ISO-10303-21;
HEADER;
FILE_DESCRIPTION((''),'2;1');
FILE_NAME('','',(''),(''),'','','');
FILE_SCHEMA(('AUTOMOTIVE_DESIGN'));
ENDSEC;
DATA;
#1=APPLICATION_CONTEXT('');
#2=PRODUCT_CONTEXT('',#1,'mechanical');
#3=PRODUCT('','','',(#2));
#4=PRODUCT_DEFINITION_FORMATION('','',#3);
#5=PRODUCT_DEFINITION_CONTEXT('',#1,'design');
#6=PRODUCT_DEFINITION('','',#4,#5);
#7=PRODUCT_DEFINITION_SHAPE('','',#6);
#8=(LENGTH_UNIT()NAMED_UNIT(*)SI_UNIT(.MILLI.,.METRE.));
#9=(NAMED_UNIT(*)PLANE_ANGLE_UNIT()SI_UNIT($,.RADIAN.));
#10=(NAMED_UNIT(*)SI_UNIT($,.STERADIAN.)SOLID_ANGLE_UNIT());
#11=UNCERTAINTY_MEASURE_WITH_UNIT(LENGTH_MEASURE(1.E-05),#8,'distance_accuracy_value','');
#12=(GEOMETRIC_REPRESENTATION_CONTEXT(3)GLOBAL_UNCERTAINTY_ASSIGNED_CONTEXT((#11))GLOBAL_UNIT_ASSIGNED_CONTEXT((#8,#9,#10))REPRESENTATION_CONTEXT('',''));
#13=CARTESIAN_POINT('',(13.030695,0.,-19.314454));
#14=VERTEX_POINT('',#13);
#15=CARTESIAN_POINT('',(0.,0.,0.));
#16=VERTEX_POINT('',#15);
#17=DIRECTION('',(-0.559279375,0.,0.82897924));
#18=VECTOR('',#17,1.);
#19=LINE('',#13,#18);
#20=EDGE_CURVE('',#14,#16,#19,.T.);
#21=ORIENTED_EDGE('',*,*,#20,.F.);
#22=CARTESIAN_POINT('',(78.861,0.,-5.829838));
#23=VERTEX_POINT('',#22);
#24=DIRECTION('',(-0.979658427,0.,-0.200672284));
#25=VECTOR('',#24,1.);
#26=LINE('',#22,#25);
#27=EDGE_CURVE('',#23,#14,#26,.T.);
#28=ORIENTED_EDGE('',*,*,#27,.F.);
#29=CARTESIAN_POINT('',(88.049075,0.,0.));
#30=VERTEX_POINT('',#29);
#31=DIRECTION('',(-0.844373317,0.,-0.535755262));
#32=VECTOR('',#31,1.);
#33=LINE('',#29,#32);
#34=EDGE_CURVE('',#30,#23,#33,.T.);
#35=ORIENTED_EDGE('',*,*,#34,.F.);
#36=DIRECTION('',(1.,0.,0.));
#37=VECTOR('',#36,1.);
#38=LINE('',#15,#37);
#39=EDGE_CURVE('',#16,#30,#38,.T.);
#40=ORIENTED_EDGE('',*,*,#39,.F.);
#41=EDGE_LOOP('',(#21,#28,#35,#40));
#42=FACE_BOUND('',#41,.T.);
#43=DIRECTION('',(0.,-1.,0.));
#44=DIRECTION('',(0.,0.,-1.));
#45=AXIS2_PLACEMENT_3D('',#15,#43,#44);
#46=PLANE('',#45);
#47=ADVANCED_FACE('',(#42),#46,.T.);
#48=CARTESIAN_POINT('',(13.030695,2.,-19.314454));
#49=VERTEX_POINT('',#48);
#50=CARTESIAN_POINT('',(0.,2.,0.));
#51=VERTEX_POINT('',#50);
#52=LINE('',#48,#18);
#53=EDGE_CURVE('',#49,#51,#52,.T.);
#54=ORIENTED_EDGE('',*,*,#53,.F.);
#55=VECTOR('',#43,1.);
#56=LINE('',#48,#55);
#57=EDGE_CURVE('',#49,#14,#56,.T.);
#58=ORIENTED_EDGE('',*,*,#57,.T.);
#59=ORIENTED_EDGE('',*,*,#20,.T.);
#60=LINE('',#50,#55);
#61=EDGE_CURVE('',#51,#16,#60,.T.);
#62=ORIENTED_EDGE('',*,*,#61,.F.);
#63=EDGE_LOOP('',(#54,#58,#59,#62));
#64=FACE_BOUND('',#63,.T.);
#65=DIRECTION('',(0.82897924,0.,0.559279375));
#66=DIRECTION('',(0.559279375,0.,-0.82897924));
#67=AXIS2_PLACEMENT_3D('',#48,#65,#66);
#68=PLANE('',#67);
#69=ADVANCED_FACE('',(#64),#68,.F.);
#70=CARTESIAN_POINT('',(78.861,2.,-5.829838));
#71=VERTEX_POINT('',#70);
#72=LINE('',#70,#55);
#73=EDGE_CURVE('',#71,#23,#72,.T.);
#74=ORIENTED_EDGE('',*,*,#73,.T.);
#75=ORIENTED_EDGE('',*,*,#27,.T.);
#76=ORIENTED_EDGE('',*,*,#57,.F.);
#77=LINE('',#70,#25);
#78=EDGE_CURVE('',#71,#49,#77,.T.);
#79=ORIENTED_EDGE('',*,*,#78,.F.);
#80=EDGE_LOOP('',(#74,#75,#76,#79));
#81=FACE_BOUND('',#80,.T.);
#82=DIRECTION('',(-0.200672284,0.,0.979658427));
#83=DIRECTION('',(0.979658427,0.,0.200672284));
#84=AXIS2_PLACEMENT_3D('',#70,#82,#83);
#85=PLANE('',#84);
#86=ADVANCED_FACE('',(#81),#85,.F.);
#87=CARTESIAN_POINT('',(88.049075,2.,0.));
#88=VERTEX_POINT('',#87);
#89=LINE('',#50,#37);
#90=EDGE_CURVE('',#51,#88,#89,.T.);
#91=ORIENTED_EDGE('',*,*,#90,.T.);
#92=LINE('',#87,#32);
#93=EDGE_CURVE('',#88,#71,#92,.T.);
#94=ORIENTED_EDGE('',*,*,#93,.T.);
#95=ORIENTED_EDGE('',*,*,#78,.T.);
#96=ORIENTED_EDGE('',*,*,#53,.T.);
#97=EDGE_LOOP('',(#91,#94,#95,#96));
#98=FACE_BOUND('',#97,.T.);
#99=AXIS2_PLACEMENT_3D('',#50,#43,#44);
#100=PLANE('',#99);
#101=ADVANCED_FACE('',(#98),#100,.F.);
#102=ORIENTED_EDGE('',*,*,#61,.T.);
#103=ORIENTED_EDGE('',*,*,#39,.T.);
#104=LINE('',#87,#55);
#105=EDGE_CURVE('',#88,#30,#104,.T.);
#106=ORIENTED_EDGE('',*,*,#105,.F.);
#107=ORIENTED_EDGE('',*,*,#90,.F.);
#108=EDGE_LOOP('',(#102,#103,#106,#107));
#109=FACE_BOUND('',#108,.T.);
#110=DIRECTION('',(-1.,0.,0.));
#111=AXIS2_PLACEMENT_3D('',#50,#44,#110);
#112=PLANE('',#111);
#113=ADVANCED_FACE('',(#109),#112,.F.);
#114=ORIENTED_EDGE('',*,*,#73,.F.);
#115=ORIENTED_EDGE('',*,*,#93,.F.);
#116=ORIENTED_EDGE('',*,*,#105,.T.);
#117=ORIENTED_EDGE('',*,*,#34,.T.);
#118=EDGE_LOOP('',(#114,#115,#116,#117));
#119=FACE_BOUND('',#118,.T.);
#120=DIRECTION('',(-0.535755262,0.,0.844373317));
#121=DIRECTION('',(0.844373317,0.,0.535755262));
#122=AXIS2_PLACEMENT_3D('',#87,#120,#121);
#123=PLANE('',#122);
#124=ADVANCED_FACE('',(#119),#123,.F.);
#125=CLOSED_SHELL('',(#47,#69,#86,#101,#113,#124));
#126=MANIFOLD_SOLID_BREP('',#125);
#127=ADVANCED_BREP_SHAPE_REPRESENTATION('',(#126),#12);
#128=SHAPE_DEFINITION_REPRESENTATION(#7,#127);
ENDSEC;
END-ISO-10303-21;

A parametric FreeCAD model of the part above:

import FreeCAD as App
import Part
import Sketcher
Q = App.Units.Quantity

doc = App.newDocument("Part")
body = doc.addObject("PartDesign::Body", "Body")

# Sketch on XZ plane
sketch1 = body.newObject("Sketcher::SketchObject", "Sketch")
sketch1.AttachmentSupport = (doc.getObject("XZ_Plane"), [""])
sketch1.MapMode = "FlatFace"
sketch1.addGeometry([
    Part.LineSegment(App.Vector(88.049075, 0, 0), App.Vector(78.861, -5.829838, 0)),
    Part.LineSegment(App.Vector(78.861, -5.829838, 0), App.Vector(13.030695, -19.314454, 0)),
    Part.LineSegment(App.Vector(13.030695, -19.314454, 0), App.Vector(0, 0, 0)),
    Part.LineSegment(App.Vector(0, 0, 0), App.Vector(88.049075, 0, 0)),
], False)
sketch1.addConstraint([
    Sketcher.Constraint("Coincident", 0, 2, 1, 1),
    Sketcher.Constraint("Coincident", 1, 2, 2, 1),
    Sketcher.Constraint("Coincident", 2, 2, 3, 1),
    Sketcher.Constraint("Coincident", 3, 2, 0, 1),
    Sketcher.Constraint("Horizontal", 3),
    Sketcher.Constraint("Coincident", 2, 2, -1, 1),
    Sketcher.Constraint("DistanceX", -1, 1, 0, 2, Q("78.861 mm")),
    Sketcher.Constraint("Distance", 1, Q("67.197201 mm")),
    Sketcher.Constraint("Distance", 2, Q("23.29908 mm")),
    Sketcher.Constraint("DistanceX", 3, 1, 3, 2, Q("88.049075 mm")),
    Sketcher.Constraint("DistanceY", 0, 2, -1, 1, Q("5.829838 mm")),
])
pad1 = body.newObject("PartDesign::Pad", "Pad")
pad1.Profile = sketch1
pad1.Length = 2
pad1.Reversed = True

doc.recompute()
